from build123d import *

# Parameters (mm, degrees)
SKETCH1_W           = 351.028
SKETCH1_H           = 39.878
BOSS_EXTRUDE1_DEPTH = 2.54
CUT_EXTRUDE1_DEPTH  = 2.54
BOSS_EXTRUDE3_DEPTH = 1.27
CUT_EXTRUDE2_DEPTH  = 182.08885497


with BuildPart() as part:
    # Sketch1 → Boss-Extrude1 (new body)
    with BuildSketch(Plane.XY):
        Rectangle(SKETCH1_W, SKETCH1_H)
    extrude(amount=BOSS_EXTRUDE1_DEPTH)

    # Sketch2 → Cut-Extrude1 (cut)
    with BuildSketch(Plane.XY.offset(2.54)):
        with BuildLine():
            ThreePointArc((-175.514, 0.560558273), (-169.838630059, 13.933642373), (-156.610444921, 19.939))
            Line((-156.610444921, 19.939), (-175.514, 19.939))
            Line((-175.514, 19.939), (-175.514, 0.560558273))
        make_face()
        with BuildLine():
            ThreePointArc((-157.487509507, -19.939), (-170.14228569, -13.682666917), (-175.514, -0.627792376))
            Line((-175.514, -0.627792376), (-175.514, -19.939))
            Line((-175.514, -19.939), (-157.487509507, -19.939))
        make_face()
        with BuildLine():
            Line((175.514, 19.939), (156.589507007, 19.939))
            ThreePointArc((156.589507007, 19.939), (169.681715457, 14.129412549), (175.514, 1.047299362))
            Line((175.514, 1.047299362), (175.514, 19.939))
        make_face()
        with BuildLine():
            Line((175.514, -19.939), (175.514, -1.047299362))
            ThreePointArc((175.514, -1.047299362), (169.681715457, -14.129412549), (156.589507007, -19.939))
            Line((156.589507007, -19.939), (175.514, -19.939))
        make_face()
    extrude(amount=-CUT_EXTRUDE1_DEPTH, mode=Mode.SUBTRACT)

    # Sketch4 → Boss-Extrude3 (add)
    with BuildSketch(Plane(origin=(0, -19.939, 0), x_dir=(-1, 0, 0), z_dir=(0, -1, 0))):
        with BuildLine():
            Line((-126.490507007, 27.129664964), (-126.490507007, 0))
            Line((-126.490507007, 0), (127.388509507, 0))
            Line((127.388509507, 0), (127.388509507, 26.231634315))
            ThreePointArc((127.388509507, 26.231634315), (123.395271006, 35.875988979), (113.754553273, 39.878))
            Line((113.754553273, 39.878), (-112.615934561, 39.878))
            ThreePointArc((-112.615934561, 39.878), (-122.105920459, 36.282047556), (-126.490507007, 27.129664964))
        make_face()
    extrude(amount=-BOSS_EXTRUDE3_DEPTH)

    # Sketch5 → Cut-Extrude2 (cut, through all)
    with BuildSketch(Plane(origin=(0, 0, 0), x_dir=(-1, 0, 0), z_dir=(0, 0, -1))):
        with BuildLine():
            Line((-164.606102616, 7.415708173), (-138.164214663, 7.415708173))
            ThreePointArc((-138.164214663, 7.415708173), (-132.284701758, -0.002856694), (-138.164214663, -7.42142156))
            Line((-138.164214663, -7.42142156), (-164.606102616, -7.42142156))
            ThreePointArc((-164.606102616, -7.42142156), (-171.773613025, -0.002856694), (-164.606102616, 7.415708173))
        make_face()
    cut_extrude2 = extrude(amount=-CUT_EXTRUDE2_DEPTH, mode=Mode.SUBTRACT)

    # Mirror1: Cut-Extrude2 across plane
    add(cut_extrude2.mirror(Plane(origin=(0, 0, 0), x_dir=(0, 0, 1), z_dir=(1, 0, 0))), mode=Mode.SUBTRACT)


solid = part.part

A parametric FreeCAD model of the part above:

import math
import FreeCAD as App
import Part
import Sketcher

V = App.Vector
Q = App.Units.Quantity


def add_polygon(sketch, points):
    """Adds a closed chain of lines whose ends are joined by coincident constraints."""
    first, n = sketch.GeometryCount, len(points)
    for a, b in zip(points, points[1:] + points[:1]):
        sketch.addGeometry(Part.LineSegment(App.Vector(*a, 0), App.Vector(*b, 0)), False)
    for i in range(n):
        sketch.addConstraint(Sketcher.Constraint("Coincident", first + i, 2, first + (i + 1) % n, 1))

doc = App.newDocument("Part")
params = doc.addObject("Spreadsheet::Sheet", "Params")
for row, (alias, value) in enumerate([
    ("sketch1_width", "13.82 in"),
    ("sketch1_height", "1.57 in"),
    ("pad1_length", "0.1 in"),
    ("pocket1_length", "0.1 in"),
    ("pad2_length", "0.05 in"),
    ("sketch4_radius", "0.3 in"),
], start=1):
    params.set(f"A{row}", alias)
    params.set(f"B{row}", "=" + value)
    params.setAlias(f"B{row}", alias)

body = doc.addObject("PartDesign::Body", "Body")

# Sketch on XY plane
sketch1 = body.newObject("Sketcher::SketchObject", "Sketch")
sketch1.AttachmentSupport = (doc.getObject("XY_Plane"), [""])
sketch1.MapMode = "FlatFace"
add_polygon(sketch1, [(-175.514, 19.939), (-175.514, -19.939), (175.514, -19.939), (175.514, 19.939)])  # lines 0-3
sketch1.addConstraint([
    Sketcher.Constraint("Vertical", 0),
    Sketcher.Constraint("Horizontal", 1),
    Sketcher.Constraint("Vertical", 2),
    Sketcher.Constraint("Horizontal", 3),
    Sketcher.Constraint("Symmetric", 0, 2, 2, 2, -1, 1),
    Sketcher.Constraint("DistanceX", 1, 1, 1, 2, Q("13.82 in")),
    Sketcher.Constraint("DistanceY", 0, 2, 0, 1, Q("1.57 in")),
])
sketch1.setExpression("Constraints[9]", "Params.sketch1_width")
sketch1.setExpression("Constraints[10]", "Params.sketch1_height")
pad1 = body.newObject("PartDesign::Pad", "Pad")
pad1.Profile = sketch1
pad1.setExpression("Length", "Params.pad1_length")

# Sketch on XY plane
sketch2 = body.newObject("Sketcher::SketchObject", "Sketch001")
sketch2.AttachmentSupport = (doc.getObject("XY_Plane"), [""])
sketch2.MapMode = "FlatFace"
sketch2.AttachmentOffset = App.Placement(V(0, 0, 0.1 * 25.4), App.Rotation())
sketch2.addGeometry([
    Part.ArcOfCircle(Part.Circle(V(-155.520491, -0.033617, 0), V(0, 0, 1), 20.002336), math.radians(93.123669), math.radians(178.297761)),  # 0
    Part.LineSegment(V(-156.610445, 19.939, 0), V(-175.514, 19.939, 0)),  # 1
    Part.LineSegment(V(-175.514, 19.939, 0), V(-175.514, 0.560558, 0)),  # 2
    Part.ArcOfCircle(Part.Circle(V(-155.520491, -0.033617, 0), V(0, 0, 1), 20.002336), math.radians(-178.297761), math.radians(-95.643555)),  # 3
    Part.LineSegment(V(-175.514, -0.627792, 0), V(-175.514, -19.939, 0)),  # 4
    Part.LineSegment(V(-175.514, -19.939, 0), V(-157.48751, -19.939, 0)),  # 5
    Part.LineSegment(V(175.514, 19.939, 0), V(156.589507, 19.939, 0)),  # 6
    Part.ArcOfCircle(Part.Circle(V(155.576786, 0, 0), V(0, 0, 1), 19.964702), math.radians(3.006976), math.radians(87.092392)),  # 7
    Part.LineSegment(V(175.514, 1.047299, 0), V(175.514, 19.939, 0)),  # 8
    Part.LineSegment(V(175.514, -19.939, 0), V(175.514, -1.047299, 0)),  # 9
    Part.ArcOfCircle(Part.Circle(V(155.576786, 0, 0), V(0, 0, 1), 19.964702), math.radians(-87.092392), math.radians(-3.006976)),  # 10
    Part.LineSegment(V(156.589507, -19.939, 0), V(175.514, -19.939, 0)),  # 11
], False)
sketch2.addConstraint([
    Sketcher.Constraint("Coincident", 0, 1, 1, 1),
    Sketcher.Constraint("Coincident", 1, 2, 2, 1),
    Sketcher.Constraint("Coincident", 2, 2, 0, 2),
    Sketcher.Constraint("Coincident", 3, 1, 4, 1),
    Sketcher.Constraint("Coincident", 4, 2, 5, 1),
    Sketcher.Constraint("Coincident", 5, 2, 3, 2),
    Sketcher.Constraint("Coincident", 6, 2, 7, 2),
    Sketcher.Constraint("Coincident", 7, 1, 8, 1),
    Sketcher.Constraint("Coincident", 8, 2, 6, 1),
    Sketcher.Constraint("Coincident", 9, 2, 10, 2),
    Sketcher.Constraint("Coincident", 10, 1, 11, 1),
    Sketcher.Constraint("Coincident", 11, 2, 9, 1),
    Sketcher.Constraint("Horizontal", 1),
    Sketcher.Constraint("Vertical", 2),
    Sketcher.Constraint("Vertical", 4),
    Sketcher.Constraint("Horizontal", 5),
    Sketcher.Constraint("Horizontal", 6),
    Sketcher.Constraint("Vertical", 8),
    Sketcher.Constraint("Vertical", 9),
    Sketcher.Constraint("Horizontal", 11),
    Sketcher.Constraint("Coincident", 3, 3, 0, 3),
    Sketcher.Constraint("Coincident", 10, 3, 7, 3),
    Sketcher.Constraint("Equal", 0, 3),
    Sketcher.Constraint("Equal", 7, 10),
    Sketcher.Constraint("Symmetric", 4, 2, 8, 2, -1, 1),
    Sketcher.Constraint("Symmetric", 1, 2, 11, 2, -1, 1),
    Sketcher.Constraint("Symmetric", 1, 2, 8, 2, -2),
    Sketcher.Constraint("PointOnObject", 7, 3, -1),
    Sketcher.Constraint("DistanceX", 1, 2, -1, 1, Q("6.91 in")),
    Sketcher.Constraint("Radius", 7, 19.964702),
    Sketcher.Constraint("DistanceY", 4, 2, 1, 2, Q("1.57 in")),
    Sketcher.Constraint("DistanceY", 8, 1, 8, 2, 18.891701),
    Sketcher.Constraint("Radius", 0, 20.002336),
    Sketcher.Constraint("DistanceX", 5, 1, 5, 2, 18.02649),
    Sketcher.Constraint("DistanceY", 2, 2, 2, 1, 19.378442),
])
pocket1 = body.newObject("PartDesign::Pocket", "Pocket")
pocket1.Profile = sketch2
pocket1.setExpression("Length", "Params.pocket1_length")

# Sketch on XZ plane
sketch3 = body.newObject("Sketcher::SketchObject", "Sketch002")
sketch3.AttachmentSupport = (doc.getObject("XZ_Plane"), [""])
sketch3.MapMode = "FlatFace"
sketch3.AttachmentOffset = App.Placement(V(0, 0, 0.785 * 25.4), App.Rotation())
sketch3.addGeometry([
    Part.LineSegment(V(126.490507, -27.129665, 0), V(126.490507, 0, 0)),  # 0
    Part.LineSegment(V(126.490507, 0, 0), V(-127.38851, 0, 0)),  # 1
    Part.LineSegment(V(-127.38851, 0, 0), V(-127.38851, -26.231634, 0)),  # 2
    Part.ArcOfCircle(Part.Circle(V(-113.739754, -26.229253, 0), V(0, 0, 1), 13.648755), math.radians(-179.990002), math.radians(-90.062124)),  # 3
    Part.LineSegment(V(-113.754553, -39.878, 0), V(112.615935, -39.878, 0)),  # 4
    Part.ArcOfCircle(Part.Circle(V(112.871327, -26.231634, 0), V(0, 0, 1), 13.648755), math.radians(-91.072169), math.radians(-3.772546)),  # 5
], False)
sketch3.addConstraint([
    Sketcher.Constraint("Coincident", 0, 2, 1, 1),
    Sketcher.Constraint("Coincident", 1, 2, 2, 1),
    Sketcher.Constraint("Coincident", 2, 2, 3, 1),
    Sketcher.Constraint("Coincident", 3, 2, 4, 1),
    Sketcher.Constraint("Coincident", 4, 2, 5, 1),
    Sketcher.Constraint("Coincident", 5, 2, 0, 1),
    Sketcher.Constraint("Vertical", 0),
    Sketcher.Constraint("Horizontal", 1),
    Sketcher.Constraint("Vertical", 2),
    Sketcher.Constraint("Horizontal", 4),
    Sketcher.Constraint("Equal", 3, 5),
    Sketcher.Constraint("PointOnObject", 0, 2, -1),
    Sketcher.Constraint("Horizontal", 5, 3, 2, 2),
    Sketcher.Constraint("DistanceY", 3, 2, -1, 1, Q("1.57 in")),
    Sketcher.Constraint("Radius", 3, 13.648755),
    Sketcher.Constraint("DistanceX", 3, 2, 3, 3, 0.014799),
    Sketcher.Constraint("DistanceX", 1, 2, 1, 1, 253.879017),
    Sketcher.Constraint("DistanceX", 4, 1, 4, 2, 226.370488),
    Sketcher.Constraint("DistanceY", 0, 1, 0, 2, 27.129665),
    Sketcher.Constraint("DistanceX", 1, 2, -1, 1, 127.38851),
])
pad2 = body.newObject("PartDesign::Pad", "Pad001")
pad2.Profile = sketch3
pad2.setExpression("Length", "Params.pad2_length")
pad2.Reversed = True

# Sketch on XY plane
sketch4 = body.newObject("Sketcher::SketchObject", "Sketch003")
sketch4.AttachmentSupport = (doc.getObject("XY_Plane"), [""])
sketch4.MapMode = "FlatFace"
sketch4.addGeometry([
    Part.LineSegment(V(138.164215, 7.415708, 0), V(164.606103, 7.415708, 0)),
    Part.ArcOfCircle(Part.Circle(V(164.350651, -0.002857, 0), V(0, 0, 1), 7.422962), math.radians(-88.027853), math.radians(88.027853)),
    Part.LineSegment(V(164.606103, -7.421422, 0), V(138.164215, -7.421422, 0)),
    Part.ArcOfCircle(Part.Circle(V(139.904702, -0.002857, 0), V(0, 0, 1), 7.62), math.radians(103.203502), math.radians(256.796498)),
], False)
sketch4.addConstraint([
    Sketcher.Constraint("Coincident", 0, 2, 1, 2),
    Sketcher.Constraint("Coincident", 1, 1, 2, 1),
    Sketcher.Constraint("Coincident", 2, 2, 3, 2),
    Sketcher.Constraint("Coincident", 3, 1, 0, 1),
    Sketcher.Constraint("Horizontal", 0),
    Sketcher.Constraint("Horizontal", 2),
    Sketcher.Constraint("Horizontal", 1, 3, 3, 3),
    Sketcher.Constraint("Vertical", 0, 2, 1, 1),
    Sketcher.Constraint("Radius", 3, Q("0.3 in")),
    Sketcher.Constraint("Radius", 1, 7.422962),
    Sketcher.Constraint("DistanceX", -1, 1, 3, 3, 139.904702),
    Sketcher.Constraint("DistanceX", 3, 3, 0, 2, 24.701401),
    Sketcher.Constraint("DistanceX", 0, 1, 0, 2, 26.441888),
    Sketcher.Constraint("DistanceY", -1, 1, 0, 2, 7.415708),
])
sketch4.setExpression("Constraints[8]", "Params.sketch4_radius")
pocket2 = body.newObject("PartDesign::Pocket", "Pocket001")
pocket2.Profile = sketch4
pocket2.Type = "ThroughAll"
pocket2.Reversed = True
doc.recompute()

mirrored = body.newObject("PartDesign::Mirrored", "Mirrored")
mirrored.Originals = [pocket2]
mirrored.MirrorPlane = (doc.getObject("YZ_Plane"), [""])
body.Tip = mirrored

doc.recompute()
